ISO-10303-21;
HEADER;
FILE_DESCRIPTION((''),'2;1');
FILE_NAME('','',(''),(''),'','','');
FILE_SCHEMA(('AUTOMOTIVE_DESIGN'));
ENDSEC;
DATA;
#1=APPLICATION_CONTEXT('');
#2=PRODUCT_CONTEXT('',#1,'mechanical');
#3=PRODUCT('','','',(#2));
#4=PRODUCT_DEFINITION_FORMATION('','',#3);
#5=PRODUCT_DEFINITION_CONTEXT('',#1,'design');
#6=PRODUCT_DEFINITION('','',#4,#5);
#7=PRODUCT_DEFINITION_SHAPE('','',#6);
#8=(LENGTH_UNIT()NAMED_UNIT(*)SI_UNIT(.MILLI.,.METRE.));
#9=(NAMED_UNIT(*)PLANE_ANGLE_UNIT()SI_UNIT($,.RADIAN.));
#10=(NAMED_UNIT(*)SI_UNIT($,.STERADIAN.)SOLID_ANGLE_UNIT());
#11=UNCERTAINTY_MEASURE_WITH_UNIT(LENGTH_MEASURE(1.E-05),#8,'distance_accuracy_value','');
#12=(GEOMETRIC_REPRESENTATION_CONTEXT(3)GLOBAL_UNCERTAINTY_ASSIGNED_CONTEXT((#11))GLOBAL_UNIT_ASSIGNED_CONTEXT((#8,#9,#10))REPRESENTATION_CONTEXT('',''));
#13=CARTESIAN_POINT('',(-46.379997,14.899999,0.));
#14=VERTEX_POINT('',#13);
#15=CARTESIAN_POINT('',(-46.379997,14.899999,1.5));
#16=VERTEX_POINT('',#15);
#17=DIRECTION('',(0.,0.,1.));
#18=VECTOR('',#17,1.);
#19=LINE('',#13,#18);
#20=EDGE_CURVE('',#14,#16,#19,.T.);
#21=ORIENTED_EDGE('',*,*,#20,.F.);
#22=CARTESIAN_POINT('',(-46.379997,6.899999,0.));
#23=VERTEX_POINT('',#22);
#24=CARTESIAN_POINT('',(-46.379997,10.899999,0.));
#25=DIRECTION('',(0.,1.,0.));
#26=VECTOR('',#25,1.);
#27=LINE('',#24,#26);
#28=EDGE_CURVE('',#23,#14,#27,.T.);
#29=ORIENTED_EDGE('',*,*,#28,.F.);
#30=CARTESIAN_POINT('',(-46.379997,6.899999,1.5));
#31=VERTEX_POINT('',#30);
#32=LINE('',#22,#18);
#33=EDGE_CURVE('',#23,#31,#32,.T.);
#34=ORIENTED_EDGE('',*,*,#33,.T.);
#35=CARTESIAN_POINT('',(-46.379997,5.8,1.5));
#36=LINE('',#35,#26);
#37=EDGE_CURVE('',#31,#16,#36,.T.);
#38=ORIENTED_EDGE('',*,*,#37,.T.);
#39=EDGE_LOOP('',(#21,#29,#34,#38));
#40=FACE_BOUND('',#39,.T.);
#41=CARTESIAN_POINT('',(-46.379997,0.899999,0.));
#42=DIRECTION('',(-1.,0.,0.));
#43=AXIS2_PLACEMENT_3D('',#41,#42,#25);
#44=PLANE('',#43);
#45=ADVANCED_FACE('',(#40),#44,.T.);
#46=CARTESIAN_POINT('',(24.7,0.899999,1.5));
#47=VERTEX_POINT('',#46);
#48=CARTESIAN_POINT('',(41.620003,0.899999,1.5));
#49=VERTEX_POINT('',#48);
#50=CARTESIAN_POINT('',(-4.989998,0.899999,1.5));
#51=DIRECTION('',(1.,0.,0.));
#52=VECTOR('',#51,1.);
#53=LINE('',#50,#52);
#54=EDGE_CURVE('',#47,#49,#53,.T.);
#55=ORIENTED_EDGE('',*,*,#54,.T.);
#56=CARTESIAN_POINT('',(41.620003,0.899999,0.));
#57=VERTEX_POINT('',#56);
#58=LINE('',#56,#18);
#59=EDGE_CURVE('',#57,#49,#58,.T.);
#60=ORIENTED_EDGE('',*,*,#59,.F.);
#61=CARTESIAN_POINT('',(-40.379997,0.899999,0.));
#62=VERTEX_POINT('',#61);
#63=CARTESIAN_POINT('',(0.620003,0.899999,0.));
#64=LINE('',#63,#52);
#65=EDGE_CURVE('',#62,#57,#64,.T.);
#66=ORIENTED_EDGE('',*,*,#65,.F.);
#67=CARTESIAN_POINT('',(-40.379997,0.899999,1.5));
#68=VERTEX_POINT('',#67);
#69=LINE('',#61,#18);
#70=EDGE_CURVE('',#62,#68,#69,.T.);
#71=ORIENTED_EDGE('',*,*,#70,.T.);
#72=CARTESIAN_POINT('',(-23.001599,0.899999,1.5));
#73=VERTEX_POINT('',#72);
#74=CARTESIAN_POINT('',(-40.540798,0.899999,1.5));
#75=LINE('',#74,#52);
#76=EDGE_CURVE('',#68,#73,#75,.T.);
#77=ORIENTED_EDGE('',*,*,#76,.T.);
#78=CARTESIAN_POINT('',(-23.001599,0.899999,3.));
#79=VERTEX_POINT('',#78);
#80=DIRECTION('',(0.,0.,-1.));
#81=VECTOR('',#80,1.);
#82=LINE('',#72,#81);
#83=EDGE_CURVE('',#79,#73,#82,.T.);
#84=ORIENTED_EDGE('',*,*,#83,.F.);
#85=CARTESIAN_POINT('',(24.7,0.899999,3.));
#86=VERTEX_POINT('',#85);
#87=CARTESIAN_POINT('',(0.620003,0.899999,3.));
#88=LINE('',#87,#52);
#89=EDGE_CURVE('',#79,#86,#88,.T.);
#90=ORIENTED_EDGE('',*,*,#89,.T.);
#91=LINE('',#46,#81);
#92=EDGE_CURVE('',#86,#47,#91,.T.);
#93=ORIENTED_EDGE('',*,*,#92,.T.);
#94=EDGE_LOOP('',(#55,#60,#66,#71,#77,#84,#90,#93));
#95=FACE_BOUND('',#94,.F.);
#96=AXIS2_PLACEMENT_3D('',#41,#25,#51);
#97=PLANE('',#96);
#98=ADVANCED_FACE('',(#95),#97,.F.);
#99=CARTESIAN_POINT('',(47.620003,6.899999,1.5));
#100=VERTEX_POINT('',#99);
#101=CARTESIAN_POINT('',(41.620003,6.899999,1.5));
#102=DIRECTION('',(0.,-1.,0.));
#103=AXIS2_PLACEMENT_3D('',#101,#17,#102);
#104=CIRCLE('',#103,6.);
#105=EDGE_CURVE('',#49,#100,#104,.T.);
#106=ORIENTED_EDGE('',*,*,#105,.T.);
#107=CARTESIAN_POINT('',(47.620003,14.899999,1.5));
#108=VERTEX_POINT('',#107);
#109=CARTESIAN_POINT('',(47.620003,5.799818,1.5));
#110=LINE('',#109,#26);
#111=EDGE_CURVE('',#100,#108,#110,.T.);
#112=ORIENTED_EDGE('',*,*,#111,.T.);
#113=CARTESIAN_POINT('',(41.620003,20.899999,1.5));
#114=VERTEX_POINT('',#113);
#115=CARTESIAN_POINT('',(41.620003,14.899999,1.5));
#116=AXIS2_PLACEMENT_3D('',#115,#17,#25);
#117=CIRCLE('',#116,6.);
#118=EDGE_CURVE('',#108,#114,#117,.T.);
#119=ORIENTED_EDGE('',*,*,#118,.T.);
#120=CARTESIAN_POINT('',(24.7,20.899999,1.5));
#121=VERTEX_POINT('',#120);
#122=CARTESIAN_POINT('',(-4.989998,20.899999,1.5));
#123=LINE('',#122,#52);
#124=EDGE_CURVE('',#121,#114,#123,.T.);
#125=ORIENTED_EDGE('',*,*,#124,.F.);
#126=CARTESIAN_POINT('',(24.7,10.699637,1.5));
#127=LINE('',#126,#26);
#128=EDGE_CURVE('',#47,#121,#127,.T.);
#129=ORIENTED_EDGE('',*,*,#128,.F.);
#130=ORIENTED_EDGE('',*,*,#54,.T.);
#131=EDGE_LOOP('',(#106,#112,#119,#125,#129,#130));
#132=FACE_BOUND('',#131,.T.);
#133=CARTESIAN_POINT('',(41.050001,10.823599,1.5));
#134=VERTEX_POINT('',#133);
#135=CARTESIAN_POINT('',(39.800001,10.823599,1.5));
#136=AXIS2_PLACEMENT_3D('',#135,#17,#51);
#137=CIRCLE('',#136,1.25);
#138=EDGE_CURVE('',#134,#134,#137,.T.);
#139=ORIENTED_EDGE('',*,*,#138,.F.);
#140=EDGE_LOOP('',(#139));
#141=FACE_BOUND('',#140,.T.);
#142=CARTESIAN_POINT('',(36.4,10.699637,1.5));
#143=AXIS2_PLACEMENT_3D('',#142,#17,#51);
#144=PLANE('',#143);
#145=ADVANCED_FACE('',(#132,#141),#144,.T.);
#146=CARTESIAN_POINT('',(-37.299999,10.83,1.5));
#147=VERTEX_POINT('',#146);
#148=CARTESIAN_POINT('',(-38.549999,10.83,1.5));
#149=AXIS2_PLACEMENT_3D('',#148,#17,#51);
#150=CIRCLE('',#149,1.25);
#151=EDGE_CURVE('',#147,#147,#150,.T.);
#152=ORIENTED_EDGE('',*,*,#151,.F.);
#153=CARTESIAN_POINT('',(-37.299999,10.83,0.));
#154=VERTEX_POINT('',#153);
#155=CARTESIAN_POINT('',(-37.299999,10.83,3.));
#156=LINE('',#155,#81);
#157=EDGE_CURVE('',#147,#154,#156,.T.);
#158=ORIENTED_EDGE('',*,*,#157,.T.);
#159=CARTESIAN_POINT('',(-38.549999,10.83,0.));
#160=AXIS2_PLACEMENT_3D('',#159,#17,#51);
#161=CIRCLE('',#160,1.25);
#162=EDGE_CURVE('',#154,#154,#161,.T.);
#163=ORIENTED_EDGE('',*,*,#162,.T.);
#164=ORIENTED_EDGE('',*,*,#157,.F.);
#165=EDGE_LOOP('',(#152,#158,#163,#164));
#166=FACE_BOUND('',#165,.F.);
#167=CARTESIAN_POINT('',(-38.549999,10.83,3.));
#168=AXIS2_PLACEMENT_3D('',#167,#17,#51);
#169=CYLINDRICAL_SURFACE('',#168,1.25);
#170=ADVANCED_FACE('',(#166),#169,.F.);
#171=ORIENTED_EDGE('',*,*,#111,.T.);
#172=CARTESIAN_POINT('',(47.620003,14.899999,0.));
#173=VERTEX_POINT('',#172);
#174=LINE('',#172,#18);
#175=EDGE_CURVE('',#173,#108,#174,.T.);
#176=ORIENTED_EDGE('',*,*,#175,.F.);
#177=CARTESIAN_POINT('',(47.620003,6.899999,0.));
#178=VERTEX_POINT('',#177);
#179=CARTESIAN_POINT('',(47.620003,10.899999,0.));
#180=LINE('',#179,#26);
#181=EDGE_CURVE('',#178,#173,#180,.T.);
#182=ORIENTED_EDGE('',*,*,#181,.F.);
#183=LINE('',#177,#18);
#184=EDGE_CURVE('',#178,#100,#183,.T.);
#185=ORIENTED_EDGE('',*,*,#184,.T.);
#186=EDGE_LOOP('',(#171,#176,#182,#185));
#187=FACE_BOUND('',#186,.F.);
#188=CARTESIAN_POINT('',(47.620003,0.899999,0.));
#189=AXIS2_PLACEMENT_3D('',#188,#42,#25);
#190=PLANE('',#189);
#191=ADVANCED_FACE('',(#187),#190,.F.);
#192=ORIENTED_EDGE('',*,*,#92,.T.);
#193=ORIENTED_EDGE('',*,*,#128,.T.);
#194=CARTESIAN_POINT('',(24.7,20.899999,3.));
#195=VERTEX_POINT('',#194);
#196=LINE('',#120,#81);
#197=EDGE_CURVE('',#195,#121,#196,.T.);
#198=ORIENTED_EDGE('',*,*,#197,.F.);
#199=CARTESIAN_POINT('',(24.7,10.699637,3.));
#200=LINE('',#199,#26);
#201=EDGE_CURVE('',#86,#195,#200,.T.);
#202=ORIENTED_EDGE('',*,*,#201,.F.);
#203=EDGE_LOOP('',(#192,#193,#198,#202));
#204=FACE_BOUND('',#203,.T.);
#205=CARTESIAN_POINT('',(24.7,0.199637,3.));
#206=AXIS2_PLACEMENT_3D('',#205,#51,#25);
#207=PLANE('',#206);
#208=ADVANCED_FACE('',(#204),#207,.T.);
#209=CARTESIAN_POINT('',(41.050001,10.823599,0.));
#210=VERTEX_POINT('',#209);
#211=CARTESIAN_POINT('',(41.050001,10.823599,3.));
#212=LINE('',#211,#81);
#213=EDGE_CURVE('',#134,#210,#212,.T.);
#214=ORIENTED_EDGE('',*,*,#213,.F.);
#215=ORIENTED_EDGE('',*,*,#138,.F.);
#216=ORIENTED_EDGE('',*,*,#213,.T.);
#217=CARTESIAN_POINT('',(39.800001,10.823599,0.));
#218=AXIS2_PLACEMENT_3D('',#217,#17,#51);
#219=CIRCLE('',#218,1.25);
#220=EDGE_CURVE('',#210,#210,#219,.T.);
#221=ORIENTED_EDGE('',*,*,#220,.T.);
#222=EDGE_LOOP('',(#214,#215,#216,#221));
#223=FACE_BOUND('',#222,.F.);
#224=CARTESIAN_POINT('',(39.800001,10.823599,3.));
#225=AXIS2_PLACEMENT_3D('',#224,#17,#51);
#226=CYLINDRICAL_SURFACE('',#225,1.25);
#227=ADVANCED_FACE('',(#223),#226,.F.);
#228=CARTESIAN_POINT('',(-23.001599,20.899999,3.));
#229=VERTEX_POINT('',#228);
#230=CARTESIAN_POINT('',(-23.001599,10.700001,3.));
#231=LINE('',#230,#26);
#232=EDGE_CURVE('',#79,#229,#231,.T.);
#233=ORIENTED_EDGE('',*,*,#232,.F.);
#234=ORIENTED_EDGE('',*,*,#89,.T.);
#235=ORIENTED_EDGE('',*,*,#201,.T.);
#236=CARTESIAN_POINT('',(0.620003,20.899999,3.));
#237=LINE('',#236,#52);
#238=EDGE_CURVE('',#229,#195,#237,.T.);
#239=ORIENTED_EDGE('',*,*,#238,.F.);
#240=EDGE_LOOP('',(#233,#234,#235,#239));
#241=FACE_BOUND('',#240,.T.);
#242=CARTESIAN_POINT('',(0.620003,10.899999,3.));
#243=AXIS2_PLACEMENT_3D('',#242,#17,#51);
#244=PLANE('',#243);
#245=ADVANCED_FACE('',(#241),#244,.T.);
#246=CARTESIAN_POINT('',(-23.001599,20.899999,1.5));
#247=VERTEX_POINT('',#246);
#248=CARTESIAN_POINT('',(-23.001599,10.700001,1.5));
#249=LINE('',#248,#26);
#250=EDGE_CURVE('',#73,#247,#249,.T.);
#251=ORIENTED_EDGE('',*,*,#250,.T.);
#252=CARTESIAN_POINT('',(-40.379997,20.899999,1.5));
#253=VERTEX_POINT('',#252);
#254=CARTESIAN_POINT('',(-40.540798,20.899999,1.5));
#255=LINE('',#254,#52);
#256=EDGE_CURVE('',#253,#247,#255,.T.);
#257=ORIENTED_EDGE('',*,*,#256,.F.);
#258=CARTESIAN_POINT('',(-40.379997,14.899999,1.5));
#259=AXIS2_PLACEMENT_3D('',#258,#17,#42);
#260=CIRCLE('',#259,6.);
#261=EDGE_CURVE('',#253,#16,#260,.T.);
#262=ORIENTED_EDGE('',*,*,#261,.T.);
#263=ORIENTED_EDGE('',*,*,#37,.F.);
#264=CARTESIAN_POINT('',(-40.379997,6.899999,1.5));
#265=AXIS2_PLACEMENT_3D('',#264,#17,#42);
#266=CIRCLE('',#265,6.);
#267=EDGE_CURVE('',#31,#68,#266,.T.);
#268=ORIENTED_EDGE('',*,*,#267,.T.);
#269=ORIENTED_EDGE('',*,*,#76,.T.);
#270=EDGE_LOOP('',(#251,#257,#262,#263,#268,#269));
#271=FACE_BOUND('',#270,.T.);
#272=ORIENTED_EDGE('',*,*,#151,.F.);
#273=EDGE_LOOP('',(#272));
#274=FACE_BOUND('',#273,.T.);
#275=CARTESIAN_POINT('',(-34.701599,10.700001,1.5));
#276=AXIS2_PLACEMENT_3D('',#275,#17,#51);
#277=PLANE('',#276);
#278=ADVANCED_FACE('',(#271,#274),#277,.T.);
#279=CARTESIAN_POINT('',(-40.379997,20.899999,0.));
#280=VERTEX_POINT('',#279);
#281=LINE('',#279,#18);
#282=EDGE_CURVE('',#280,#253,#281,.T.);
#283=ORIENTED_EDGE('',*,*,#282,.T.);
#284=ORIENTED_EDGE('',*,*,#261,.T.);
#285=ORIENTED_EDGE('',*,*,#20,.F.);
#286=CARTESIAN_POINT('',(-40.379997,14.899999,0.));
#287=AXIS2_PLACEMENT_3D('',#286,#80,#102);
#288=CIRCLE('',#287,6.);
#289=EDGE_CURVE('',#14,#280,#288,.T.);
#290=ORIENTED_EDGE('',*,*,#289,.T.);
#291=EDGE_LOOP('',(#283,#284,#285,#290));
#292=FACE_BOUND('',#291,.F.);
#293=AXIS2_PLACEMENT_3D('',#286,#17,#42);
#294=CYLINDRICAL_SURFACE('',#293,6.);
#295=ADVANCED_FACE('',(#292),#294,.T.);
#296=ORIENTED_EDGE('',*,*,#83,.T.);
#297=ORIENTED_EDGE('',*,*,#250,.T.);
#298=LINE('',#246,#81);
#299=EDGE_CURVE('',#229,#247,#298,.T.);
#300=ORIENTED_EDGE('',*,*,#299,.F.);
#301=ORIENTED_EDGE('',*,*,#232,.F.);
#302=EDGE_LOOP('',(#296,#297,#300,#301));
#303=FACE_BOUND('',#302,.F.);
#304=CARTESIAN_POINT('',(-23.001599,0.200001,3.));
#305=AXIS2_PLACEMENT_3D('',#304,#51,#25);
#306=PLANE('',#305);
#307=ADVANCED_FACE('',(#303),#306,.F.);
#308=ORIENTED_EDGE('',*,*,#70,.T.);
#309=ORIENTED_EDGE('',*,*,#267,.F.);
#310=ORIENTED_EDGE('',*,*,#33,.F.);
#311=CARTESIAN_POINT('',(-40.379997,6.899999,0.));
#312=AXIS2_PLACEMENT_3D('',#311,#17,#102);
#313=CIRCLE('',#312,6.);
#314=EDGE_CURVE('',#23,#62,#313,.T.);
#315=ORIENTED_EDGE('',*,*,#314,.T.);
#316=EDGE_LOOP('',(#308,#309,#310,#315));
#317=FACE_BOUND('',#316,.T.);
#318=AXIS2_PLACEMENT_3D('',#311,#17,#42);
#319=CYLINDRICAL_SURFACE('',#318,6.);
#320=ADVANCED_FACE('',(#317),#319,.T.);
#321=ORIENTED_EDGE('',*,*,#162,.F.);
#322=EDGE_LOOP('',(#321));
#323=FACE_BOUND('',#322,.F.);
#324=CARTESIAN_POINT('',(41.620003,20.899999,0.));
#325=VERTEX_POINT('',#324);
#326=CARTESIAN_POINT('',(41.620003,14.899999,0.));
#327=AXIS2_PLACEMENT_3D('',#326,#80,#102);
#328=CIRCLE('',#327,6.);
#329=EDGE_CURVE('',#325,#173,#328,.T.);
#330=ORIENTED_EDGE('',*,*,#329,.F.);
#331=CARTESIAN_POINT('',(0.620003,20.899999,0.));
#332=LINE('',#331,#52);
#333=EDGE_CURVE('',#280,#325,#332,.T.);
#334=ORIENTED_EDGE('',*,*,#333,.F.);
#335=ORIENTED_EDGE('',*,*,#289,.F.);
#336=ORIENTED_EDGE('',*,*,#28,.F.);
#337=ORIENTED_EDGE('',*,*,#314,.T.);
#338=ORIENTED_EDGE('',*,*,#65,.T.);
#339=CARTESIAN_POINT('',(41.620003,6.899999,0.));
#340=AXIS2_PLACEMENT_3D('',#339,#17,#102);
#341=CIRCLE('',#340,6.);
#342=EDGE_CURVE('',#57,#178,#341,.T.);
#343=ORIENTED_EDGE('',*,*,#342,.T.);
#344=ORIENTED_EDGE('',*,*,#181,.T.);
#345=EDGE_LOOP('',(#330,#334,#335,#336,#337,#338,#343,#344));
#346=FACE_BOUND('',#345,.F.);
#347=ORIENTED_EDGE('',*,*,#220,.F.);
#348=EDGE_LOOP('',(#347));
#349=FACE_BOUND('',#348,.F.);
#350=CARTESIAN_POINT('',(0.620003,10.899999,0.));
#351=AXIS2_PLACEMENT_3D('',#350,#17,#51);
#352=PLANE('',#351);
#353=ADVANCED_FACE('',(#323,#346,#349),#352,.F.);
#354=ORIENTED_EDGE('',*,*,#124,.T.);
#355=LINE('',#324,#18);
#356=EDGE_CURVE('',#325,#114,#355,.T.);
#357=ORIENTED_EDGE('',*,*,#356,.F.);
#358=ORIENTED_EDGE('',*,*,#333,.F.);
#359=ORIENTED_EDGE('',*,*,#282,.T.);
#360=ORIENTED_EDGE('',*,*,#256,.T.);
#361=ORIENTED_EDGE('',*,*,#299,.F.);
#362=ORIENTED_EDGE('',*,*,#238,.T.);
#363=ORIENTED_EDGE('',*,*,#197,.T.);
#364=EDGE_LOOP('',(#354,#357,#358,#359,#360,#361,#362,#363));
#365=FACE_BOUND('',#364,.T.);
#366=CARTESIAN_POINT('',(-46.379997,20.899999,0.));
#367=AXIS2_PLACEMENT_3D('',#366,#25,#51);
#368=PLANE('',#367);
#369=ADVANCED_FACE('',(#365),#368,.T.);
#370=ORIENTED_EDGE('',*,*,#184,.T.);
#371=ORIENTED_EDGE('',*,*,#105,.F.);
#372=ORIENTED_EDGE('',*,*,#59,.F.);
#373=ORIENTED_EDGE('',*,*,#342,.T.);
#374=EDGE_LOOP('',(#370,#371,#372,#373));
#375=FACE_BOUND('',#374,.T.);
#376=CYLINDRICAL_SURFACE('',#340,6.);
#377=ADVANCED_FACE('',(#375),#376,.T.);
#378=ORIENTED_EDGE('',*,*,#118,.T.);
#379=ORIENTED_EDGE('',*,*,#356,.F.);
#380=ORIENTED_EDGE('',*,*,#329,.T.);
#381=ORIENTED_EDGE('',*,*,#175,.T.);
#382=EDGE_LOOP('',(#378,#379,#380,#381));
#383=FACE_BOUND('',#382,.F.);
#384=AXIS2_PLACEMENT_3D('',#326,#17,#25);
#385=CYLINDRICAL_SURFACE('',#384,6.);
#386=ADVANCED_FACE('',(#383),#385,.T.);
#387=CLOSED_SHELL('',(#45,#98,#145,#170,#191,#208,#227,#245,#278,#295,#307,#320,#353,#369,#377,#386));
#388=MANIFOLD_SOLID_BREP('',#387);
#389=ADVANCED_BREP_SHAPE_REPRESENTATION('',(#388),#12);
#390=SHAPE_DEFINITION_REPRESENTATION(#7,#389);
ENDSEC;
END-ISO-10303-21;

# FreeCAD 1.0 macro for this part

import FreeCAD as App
import Part
import Sketcher
from FreeCAD import Vector


def edges_at(feature, points):
    """Names of the edges that pass closest to the given points."""
    edges = feature.Shape.Edges
    near = lambda p: min(range(len(edges)), key=lambda i: edges[i].distToShape(Part.Vertex(*p))[0])
    return sorted({f"Edge{near(p) + 1}" for p in points})


def add_polygon(sketch, points):
    """Adds a closed chain of lines whose ends are joined by coincident constraints."""
    first, n = sketch.GeometryCount, len(points)
    for a, b in zip(points, points[1:] + points[:1]):
        sketch.addGeometry(Part.LineSegment(App.Vector(*a, 0), App.Vector(*b, 0)), False)
    for i in range(n):
        sketch.addConstraint(Sketcher.Constraint("Coincident", first + i, 2, first + (i + 1) % n, 1))

doc = App.newDocument("Part")
body = doc.addObject("PartDesign::Body", "Body")

# Sketch on XY plane
sketch1 = body.newObject("Sketcher::SketchObject", "Sketch")
sketch1.AttachmentSupport = (doc.getObject("XY_Plane"), [""])
sketch1.MapMode = "FlatFace"
add_polygon(sketch1, [(-46, 21), (-46, 1), (48, 1), (48, 21)])  # lines 0-3
sketch1.addConstraint(Sketcher.Constraint("Vertical", 0))
sketch1.addConstraint(Sketcher.Constraint("Horizontal", 1))
sketch1.addConstraint(Sketcher.Constraint("Vertical", 2))
sketch1.addConstraint(Sketcher.Constraint("Horizontal", 3))
sketch1.addConstraint(Sketcher.Constraint("DistanceX", 1, 1, 1, 2, 94.0))
sketch1.addConstraint(Sketcher.Constraint("DistanceY", 0, 2, 0, 1, 20.0))
sketch1.addConstraint(Sketcher.Constraint("DistanceY", -1, 1, 0, 2, 0.899999))
sketch1.addConstraint(Sketcher.Constraint("DistanceX", 0, 2, -1, 1, 46.379997))
pad1 = body.newObject("PartDesign::Pad", "Pad")
pad1.Profile = sketch1
pad1.Length = 3

# Sketch on XY plane
sketch2 = body.newObject("Sketcher::SketchObject", "Sketch001")
sketch2.AttachmentSupport = (doc.getObject("XY_Plane"), [""])
sketch2.MapMode = "FlatFace"
sketch2.AttachmentOffset = App.Placement(Vector(0, 0, 3), App.Rotation())
sketch2.addGeometry(Part.Circle(Vector(-38.5, 10.8, 0), Vector(0, 0, 1), 1.2), False)
sketch2.addGeometry(Part.Circle(Vector(39.8, 10.8, 0), Vector(0, 0, 1), 1.2), False)
sketch2.addConstraint(Sketcher.Constraint("Equal", 0, 1))
sketch2.addConstraint(Sketcher.Constraint("Diameter", 0, 2.5))
sketch2.addConstraint(Sketcher.Constraint("DistanceX", -1, 1, 1, 3, 39.800001))
sketch2.addConstraint(Sketcher.Constraint("DistanceX", 0, 3, -1, 1, 38.549999))
sketch2.addConstraint(Sketcher.Constraint("DistanceY", -1, 1, 0, 3, 10.83))
sketch2.addConstraint(Sketcher.Constraint("DistanceY", -1, 1, 1, 3, 10.823599))
pocket1 = body.newObject("PartDesign::Pocket", "Pocket")
pocket1.Profile = sketch2
pocket1.Length = 3
doc.recompute()

fillet = body.newObject("PartDesign::Fillet", "Fillet")
fillet.Base = (pocket1, edges_at(pocket1, [
    (-46.38, 0.9, 1.5),
    (-46.38, 20.9, 1.5),
    (47.62, 20.9, 1.5),
    (47.62, 0.9, 1.5),
]))
fillet.Radius = 6

# Sketch on XY plane
sketch3 = body.newObject("Sketcher::SketchObject", "Sketch002")
sketch3.AttachmentSupport = (doc.getObject("XY_Plane"), [""])
sketch3.MapMode = "FlatFace"
sketch3.AttachmentOffset = App.Placement(Vector(0, 0, 3), App.Rotation())
add_polygon(sketch3, [(-46, 21), (-46, 0), (-23, 0), (-23, 21)])  # lines 0-3
sketch3.addConstraint(Sketcher.Constraint("Vertical", 0))
sketch3.addConstraint(Sketcher.Constraint("Horizontal", 1))
sketch3.addConstraint(Sketcher.Constraint("Vertical", 2))
sketch3.addConstraint(Sketcher.Constraint("Horizontal", 3))
sketch3.addConstraint(Sketcher.Constraint("DistanceY", 0, 2, 0, 1, 21.0))
sketch3.addConstraint(Sketcher.Constraint("DistanceX", 1, 1, 1, 2, 23.4))
sketch3.addConstraint(Sketcher.Constraint("DistanceY", -1, 1, 0, 2, 0.200001))
sketch3.addConstraint(Sketcher.Constraint("DistanceX", 0, 2, -1, 1, 46.401599))
pocket2 = body.newObject("PartDesign::Pocket", "Pocket001")
pocket2.Profile = sketch3
pocket2.Length = 1.5

# Sketch on XY plane
sketch4 = body.newObject("Sketcher::SketchObject", "Sketch003")
sketch4.AttachmentSupport = (doc.getObject("XY_Plane"), [""])
sketch4.MapMode = "FlatFace"
sketch4.AttachmentOffset = App.Placement(Vector(0, 0, 3), App.Rotation())
add_polygon(sketch4, [(25, 21), (25, 0), (48, 0), (48, 21)])  # lines 0-3
sketch4.addConstraint(Sketcher.Constraint("Vertical", 0))
sketch4.addConstraint(Sketcher.Constraint("Horizontal", 1))
sketch4.addConstraint(Sketcher.Constraint("Vertical", 2))
sketch4.addConstraint(Sketcher.Constraint("Horizontal", 3))
sketch4.addConstraint(Sketcher.Constraint("DistanceY", 0, 2, 0, 1, 21.0))
sketch4.addConstraint(Sketcher.Constraint("DistanceX", 1, 1, 1, 2, 23.4))
sketch4.addConstraint(Sketcher.Constraint("DistanceX", -1, 1, 0, 2, 24.7))
sketch4.addConstraint(Sketcher.Constraint("DistanceY", -1, 1, 0, 2, 0.199637))
pocket3 = body.newObject("PartDesign::Pocket", "Pocket002")
pocket3.Profile = sketch4
pocket3.Length = 1.5

doc.recompute()
